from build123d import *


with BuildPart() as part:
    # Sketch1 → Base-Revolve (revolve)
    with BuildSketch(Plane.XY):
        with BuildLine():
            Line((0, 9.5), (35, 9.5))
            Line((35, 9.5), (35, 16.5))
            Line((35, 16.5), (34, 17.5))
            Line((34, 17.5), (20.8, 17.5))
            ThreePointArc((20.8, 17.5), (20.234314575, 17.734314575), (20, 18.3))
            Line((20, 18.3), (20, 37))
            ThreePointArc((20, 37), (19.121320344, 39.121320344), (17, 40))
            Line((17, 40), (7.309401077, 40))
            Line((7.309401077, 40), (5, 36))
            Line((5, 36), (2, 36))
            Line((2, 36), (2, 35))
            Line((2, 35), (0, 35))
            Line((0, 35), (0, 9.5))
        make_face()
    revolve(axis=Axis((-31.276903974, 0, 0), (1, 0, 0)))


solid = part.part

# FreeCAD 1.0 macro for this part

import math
import FreeCAD as App
import Part
import Sketcher

V = App.Vector
Q = App.Units.Quantity

doc = App.newDocument("Part")
params = doc.addObject("Spreadsheet::Sheet", "Params")
for row, (alias, value) in enumerate([
    ("sketch1_radius", "3 mm"),
    ("sketch1_radius2", "0.8 mm"),
    ("sketch1_width", "35 mm"),
    ("sketch1_width2", "3 mm"),
    ("sketch1_width3", "2 mm"),
    ("revolution_angle", "360 deg"),
], start=1):
    params.set(f"A{row}", alias)
    params.set(f"B{row}", "=" + value)
    params.setAlias(f"B{row}", alias)

body = doc.addObject("PartDesign::Body", "Body")

# Sketch on XY plane
sketch1 = body.newObject("Sketcher::SketchObject", "Sketch")
sketch1.AttachmentSupport = (doc.getObject("XY_Plane"), [""])
sketch1.MapMode = "FlatFace"
sketch1.addGeometry(Part.LineSegment(V(0, 9.5, 0), V(35, 9.5, 0)), False)
sketch1.addGeometry(Part.LineSegment(V(35, 9.5, 0), V(35, 16.5, 0)), False)
sketch1.addGeometry(Part.LineSegment(V(35, 16.5, 0), V(34, 17.5, 0)), False)
sketch1.addGeometry(Part.LineSegment(V(34, 17.5, 0), V(20.8, 17.5, 0)), False)
sketch1.addGeometry(Part.ArcOfCircle(Part.Circle(V(20.8, 18.3, 0), V(0, 0, 1), 0.8), math.radians(180), math.radians(270)), False)
sketch1.addGeometry(Part.LineSegment(V(20, 18.3, 0), V(20, 37, 0)), False)
sketch1.addGeometry(Part.ArcOfCircle(Part.Circle(V(17, 37, 0), V(0, 0, 1), 3), math.radians(0), math.radians(90)), False)
sketch1.addGeometry(Part.LineSegment(V(17, 40, 0), V(7.309401, 40, 0)), False)
sketch1.addGeometry(Part.LineSegment(V(7.309401, 40, 0), V(5, 36, 0)), False)
sketch1.addGeometry(Part.LineSegment(V(5, 36, 0), V(2, 36, 0)), False)
sketch1.addGeometry(Part.LineSegment(V(2, 36, 0), V(2, 35, 0)), False)
sketch1.addGeometry(Part.LineSegment(V(2, 35, 0), V(0, 35, 0)), False)
sketch1.addGeometry(Part.LineSegment(V(0, 35, 0), V(0, 9.5, 0)), False)
sketch1.addConstraint(Sketcher.Constraint("Coincident", 0, 2, 1, 1))
sketch1.addConstraint(Sketcher.Constraint("Coincident", 1, 2, 2, 1))
sketch1.addConstraint(Sketcher.Constraint("Coincident", 2, 2, 3, 1))
sketch1.addConstraint(Sketcher.Constraint("Tangent", 3, 2, 4, 2))
sketch1.addConstraint(Sketcher.Constraint("Tangent", 4, 1, 5, 1))
sketch1.addConstraint(Sketcher.Constraint("Tangent", 5, 2, 6, 1))
sketch1.addConstraint(Sketcher.Constraint("Tangent", 6, 2, 7, 1))
sketch1.addConstraint(Sketcher.Constraint("Coincident", 7, 2, 8, 1))
sketch1.addConstraint(Sketcher.Constraint("Coincident", 8, 2, 9, 1))
sketch1.addConstraint(Sketcher.Constraint("Coincident", 9, 2, 10, 1))
sketch1.addConstraint(Sketcher.Constraint("Coincident", 10, 2, 11, 1))
sketch1.addConstraint(Sketcher.Constraint("Coincident", 11, 2, 12, 1))
sketch1.addConstraint(Sketcher.Constraint("Coincident", 12, 2, 0, 1))
sketch1.addConstraint(Sketcher.Constraint("Horizontal", 0))
sketch1.addConstraint(Sketcher.Constraint("Vertical", 1))
sketch1.addConstraint(Sketcher.Constraint("Horizontal", 3))
sketch1.addConstraint(Sketcher.Constraint("Vertical", 5))
sketch1.addConstraint(Sketcher.Constraint("Horizontal", 7))
sketch1.addConstraint(Sketcher.Constraint("Horizontal", 9))
sketch1.addConstraint(Sketcher.Constraint("Vertical", 10))
sketch1.addConstraint(Sketcher.Constraint("Horizontal", 11))
sketch1.addConstraint(Sketcher.Constraint("Vertical", 12))
sketch1.addConstraint(Sketcher.Constraint("PointOnObject", 11, 2, -2))
sketch1.addConstraint(Sketcher.Constraint("Radius", 6, Q("3 mm")))
sketch1.addConstraint(Sketcher.Constraint("Radius", 4, Q("0.8 mm")))
sketch1.addConstraint(Sketcher.Constraint("DistanceX", 0, 1, 0, 2, Q("35 mm")))
sketch1.addConstraint(Sketcher.Constraint("DistanceX", 9, 2, 9, 1, Q("3 mm")))
sketch1.addConstraint(Sketcher.Constraint("DistanceX", 11, 2, 11, 1, Q("2 mm")))
sketch1.addConstraint(Sketcher.Constraint("DistanceY", 1, 1, 1, 2, Q("7 mm")))
sketch1.addConstraint(Sketcher.Constraint("DistanceY", 10, 2, 10, 1, Q("1 mm")))
sketch1.addConstraint(Sketcher.Constraint("Angle", 2, Q("135 deg")))
sketch1.addConstraint(Sketcher.Constraint("Angle", 8, Q("-120 deg")))
sketch1.addConstraint(Sketcher.Constraint("DistanceX", 3, 2, 3, 1, Q("13.2 mm")))
sketch1.addConstraint(Sketcher.Constraint("DistanceY", 5, 1, 5, 2, Q("18.7 mm")))
sketch1.addConstraint(Sketcher.Constraint("DistanceY", 12, 2, 12, 1, Q("25.5 mm")))
sketch1.addConstraint(Sketcher.Constraint("DistanceX", -1, 1, 6, 3, Q("17 mm")))
sketch1.addConstraint(Sketcher.Constraint("DistanceY", -1, 1, 6, 3, Q("37 mm")))
sketch1.setExpression("Constraints[23]", "Params.sketch1_radius")
sketch1.setExpression("Constraints[24]", "Params.sketch1_radius2")
sketch1.setExpression("Constraints[25]", "Params.sketch1_width")
sketch1.setExpression("Constraints[26]", "Params.sketch1_width2")
sketch1.setExpression("Constraints[27]", "Params.sketch1_width3")
revolution = body.newObject("PartDesign::Revolution", "Revolution")
revolution.Profile = sketch1
revolution.ReferenceAxis = (sketch1, ["H_Axis"])
revolution.setExpression("Angle", "Params.revolution_angle")

doc.recompute()
